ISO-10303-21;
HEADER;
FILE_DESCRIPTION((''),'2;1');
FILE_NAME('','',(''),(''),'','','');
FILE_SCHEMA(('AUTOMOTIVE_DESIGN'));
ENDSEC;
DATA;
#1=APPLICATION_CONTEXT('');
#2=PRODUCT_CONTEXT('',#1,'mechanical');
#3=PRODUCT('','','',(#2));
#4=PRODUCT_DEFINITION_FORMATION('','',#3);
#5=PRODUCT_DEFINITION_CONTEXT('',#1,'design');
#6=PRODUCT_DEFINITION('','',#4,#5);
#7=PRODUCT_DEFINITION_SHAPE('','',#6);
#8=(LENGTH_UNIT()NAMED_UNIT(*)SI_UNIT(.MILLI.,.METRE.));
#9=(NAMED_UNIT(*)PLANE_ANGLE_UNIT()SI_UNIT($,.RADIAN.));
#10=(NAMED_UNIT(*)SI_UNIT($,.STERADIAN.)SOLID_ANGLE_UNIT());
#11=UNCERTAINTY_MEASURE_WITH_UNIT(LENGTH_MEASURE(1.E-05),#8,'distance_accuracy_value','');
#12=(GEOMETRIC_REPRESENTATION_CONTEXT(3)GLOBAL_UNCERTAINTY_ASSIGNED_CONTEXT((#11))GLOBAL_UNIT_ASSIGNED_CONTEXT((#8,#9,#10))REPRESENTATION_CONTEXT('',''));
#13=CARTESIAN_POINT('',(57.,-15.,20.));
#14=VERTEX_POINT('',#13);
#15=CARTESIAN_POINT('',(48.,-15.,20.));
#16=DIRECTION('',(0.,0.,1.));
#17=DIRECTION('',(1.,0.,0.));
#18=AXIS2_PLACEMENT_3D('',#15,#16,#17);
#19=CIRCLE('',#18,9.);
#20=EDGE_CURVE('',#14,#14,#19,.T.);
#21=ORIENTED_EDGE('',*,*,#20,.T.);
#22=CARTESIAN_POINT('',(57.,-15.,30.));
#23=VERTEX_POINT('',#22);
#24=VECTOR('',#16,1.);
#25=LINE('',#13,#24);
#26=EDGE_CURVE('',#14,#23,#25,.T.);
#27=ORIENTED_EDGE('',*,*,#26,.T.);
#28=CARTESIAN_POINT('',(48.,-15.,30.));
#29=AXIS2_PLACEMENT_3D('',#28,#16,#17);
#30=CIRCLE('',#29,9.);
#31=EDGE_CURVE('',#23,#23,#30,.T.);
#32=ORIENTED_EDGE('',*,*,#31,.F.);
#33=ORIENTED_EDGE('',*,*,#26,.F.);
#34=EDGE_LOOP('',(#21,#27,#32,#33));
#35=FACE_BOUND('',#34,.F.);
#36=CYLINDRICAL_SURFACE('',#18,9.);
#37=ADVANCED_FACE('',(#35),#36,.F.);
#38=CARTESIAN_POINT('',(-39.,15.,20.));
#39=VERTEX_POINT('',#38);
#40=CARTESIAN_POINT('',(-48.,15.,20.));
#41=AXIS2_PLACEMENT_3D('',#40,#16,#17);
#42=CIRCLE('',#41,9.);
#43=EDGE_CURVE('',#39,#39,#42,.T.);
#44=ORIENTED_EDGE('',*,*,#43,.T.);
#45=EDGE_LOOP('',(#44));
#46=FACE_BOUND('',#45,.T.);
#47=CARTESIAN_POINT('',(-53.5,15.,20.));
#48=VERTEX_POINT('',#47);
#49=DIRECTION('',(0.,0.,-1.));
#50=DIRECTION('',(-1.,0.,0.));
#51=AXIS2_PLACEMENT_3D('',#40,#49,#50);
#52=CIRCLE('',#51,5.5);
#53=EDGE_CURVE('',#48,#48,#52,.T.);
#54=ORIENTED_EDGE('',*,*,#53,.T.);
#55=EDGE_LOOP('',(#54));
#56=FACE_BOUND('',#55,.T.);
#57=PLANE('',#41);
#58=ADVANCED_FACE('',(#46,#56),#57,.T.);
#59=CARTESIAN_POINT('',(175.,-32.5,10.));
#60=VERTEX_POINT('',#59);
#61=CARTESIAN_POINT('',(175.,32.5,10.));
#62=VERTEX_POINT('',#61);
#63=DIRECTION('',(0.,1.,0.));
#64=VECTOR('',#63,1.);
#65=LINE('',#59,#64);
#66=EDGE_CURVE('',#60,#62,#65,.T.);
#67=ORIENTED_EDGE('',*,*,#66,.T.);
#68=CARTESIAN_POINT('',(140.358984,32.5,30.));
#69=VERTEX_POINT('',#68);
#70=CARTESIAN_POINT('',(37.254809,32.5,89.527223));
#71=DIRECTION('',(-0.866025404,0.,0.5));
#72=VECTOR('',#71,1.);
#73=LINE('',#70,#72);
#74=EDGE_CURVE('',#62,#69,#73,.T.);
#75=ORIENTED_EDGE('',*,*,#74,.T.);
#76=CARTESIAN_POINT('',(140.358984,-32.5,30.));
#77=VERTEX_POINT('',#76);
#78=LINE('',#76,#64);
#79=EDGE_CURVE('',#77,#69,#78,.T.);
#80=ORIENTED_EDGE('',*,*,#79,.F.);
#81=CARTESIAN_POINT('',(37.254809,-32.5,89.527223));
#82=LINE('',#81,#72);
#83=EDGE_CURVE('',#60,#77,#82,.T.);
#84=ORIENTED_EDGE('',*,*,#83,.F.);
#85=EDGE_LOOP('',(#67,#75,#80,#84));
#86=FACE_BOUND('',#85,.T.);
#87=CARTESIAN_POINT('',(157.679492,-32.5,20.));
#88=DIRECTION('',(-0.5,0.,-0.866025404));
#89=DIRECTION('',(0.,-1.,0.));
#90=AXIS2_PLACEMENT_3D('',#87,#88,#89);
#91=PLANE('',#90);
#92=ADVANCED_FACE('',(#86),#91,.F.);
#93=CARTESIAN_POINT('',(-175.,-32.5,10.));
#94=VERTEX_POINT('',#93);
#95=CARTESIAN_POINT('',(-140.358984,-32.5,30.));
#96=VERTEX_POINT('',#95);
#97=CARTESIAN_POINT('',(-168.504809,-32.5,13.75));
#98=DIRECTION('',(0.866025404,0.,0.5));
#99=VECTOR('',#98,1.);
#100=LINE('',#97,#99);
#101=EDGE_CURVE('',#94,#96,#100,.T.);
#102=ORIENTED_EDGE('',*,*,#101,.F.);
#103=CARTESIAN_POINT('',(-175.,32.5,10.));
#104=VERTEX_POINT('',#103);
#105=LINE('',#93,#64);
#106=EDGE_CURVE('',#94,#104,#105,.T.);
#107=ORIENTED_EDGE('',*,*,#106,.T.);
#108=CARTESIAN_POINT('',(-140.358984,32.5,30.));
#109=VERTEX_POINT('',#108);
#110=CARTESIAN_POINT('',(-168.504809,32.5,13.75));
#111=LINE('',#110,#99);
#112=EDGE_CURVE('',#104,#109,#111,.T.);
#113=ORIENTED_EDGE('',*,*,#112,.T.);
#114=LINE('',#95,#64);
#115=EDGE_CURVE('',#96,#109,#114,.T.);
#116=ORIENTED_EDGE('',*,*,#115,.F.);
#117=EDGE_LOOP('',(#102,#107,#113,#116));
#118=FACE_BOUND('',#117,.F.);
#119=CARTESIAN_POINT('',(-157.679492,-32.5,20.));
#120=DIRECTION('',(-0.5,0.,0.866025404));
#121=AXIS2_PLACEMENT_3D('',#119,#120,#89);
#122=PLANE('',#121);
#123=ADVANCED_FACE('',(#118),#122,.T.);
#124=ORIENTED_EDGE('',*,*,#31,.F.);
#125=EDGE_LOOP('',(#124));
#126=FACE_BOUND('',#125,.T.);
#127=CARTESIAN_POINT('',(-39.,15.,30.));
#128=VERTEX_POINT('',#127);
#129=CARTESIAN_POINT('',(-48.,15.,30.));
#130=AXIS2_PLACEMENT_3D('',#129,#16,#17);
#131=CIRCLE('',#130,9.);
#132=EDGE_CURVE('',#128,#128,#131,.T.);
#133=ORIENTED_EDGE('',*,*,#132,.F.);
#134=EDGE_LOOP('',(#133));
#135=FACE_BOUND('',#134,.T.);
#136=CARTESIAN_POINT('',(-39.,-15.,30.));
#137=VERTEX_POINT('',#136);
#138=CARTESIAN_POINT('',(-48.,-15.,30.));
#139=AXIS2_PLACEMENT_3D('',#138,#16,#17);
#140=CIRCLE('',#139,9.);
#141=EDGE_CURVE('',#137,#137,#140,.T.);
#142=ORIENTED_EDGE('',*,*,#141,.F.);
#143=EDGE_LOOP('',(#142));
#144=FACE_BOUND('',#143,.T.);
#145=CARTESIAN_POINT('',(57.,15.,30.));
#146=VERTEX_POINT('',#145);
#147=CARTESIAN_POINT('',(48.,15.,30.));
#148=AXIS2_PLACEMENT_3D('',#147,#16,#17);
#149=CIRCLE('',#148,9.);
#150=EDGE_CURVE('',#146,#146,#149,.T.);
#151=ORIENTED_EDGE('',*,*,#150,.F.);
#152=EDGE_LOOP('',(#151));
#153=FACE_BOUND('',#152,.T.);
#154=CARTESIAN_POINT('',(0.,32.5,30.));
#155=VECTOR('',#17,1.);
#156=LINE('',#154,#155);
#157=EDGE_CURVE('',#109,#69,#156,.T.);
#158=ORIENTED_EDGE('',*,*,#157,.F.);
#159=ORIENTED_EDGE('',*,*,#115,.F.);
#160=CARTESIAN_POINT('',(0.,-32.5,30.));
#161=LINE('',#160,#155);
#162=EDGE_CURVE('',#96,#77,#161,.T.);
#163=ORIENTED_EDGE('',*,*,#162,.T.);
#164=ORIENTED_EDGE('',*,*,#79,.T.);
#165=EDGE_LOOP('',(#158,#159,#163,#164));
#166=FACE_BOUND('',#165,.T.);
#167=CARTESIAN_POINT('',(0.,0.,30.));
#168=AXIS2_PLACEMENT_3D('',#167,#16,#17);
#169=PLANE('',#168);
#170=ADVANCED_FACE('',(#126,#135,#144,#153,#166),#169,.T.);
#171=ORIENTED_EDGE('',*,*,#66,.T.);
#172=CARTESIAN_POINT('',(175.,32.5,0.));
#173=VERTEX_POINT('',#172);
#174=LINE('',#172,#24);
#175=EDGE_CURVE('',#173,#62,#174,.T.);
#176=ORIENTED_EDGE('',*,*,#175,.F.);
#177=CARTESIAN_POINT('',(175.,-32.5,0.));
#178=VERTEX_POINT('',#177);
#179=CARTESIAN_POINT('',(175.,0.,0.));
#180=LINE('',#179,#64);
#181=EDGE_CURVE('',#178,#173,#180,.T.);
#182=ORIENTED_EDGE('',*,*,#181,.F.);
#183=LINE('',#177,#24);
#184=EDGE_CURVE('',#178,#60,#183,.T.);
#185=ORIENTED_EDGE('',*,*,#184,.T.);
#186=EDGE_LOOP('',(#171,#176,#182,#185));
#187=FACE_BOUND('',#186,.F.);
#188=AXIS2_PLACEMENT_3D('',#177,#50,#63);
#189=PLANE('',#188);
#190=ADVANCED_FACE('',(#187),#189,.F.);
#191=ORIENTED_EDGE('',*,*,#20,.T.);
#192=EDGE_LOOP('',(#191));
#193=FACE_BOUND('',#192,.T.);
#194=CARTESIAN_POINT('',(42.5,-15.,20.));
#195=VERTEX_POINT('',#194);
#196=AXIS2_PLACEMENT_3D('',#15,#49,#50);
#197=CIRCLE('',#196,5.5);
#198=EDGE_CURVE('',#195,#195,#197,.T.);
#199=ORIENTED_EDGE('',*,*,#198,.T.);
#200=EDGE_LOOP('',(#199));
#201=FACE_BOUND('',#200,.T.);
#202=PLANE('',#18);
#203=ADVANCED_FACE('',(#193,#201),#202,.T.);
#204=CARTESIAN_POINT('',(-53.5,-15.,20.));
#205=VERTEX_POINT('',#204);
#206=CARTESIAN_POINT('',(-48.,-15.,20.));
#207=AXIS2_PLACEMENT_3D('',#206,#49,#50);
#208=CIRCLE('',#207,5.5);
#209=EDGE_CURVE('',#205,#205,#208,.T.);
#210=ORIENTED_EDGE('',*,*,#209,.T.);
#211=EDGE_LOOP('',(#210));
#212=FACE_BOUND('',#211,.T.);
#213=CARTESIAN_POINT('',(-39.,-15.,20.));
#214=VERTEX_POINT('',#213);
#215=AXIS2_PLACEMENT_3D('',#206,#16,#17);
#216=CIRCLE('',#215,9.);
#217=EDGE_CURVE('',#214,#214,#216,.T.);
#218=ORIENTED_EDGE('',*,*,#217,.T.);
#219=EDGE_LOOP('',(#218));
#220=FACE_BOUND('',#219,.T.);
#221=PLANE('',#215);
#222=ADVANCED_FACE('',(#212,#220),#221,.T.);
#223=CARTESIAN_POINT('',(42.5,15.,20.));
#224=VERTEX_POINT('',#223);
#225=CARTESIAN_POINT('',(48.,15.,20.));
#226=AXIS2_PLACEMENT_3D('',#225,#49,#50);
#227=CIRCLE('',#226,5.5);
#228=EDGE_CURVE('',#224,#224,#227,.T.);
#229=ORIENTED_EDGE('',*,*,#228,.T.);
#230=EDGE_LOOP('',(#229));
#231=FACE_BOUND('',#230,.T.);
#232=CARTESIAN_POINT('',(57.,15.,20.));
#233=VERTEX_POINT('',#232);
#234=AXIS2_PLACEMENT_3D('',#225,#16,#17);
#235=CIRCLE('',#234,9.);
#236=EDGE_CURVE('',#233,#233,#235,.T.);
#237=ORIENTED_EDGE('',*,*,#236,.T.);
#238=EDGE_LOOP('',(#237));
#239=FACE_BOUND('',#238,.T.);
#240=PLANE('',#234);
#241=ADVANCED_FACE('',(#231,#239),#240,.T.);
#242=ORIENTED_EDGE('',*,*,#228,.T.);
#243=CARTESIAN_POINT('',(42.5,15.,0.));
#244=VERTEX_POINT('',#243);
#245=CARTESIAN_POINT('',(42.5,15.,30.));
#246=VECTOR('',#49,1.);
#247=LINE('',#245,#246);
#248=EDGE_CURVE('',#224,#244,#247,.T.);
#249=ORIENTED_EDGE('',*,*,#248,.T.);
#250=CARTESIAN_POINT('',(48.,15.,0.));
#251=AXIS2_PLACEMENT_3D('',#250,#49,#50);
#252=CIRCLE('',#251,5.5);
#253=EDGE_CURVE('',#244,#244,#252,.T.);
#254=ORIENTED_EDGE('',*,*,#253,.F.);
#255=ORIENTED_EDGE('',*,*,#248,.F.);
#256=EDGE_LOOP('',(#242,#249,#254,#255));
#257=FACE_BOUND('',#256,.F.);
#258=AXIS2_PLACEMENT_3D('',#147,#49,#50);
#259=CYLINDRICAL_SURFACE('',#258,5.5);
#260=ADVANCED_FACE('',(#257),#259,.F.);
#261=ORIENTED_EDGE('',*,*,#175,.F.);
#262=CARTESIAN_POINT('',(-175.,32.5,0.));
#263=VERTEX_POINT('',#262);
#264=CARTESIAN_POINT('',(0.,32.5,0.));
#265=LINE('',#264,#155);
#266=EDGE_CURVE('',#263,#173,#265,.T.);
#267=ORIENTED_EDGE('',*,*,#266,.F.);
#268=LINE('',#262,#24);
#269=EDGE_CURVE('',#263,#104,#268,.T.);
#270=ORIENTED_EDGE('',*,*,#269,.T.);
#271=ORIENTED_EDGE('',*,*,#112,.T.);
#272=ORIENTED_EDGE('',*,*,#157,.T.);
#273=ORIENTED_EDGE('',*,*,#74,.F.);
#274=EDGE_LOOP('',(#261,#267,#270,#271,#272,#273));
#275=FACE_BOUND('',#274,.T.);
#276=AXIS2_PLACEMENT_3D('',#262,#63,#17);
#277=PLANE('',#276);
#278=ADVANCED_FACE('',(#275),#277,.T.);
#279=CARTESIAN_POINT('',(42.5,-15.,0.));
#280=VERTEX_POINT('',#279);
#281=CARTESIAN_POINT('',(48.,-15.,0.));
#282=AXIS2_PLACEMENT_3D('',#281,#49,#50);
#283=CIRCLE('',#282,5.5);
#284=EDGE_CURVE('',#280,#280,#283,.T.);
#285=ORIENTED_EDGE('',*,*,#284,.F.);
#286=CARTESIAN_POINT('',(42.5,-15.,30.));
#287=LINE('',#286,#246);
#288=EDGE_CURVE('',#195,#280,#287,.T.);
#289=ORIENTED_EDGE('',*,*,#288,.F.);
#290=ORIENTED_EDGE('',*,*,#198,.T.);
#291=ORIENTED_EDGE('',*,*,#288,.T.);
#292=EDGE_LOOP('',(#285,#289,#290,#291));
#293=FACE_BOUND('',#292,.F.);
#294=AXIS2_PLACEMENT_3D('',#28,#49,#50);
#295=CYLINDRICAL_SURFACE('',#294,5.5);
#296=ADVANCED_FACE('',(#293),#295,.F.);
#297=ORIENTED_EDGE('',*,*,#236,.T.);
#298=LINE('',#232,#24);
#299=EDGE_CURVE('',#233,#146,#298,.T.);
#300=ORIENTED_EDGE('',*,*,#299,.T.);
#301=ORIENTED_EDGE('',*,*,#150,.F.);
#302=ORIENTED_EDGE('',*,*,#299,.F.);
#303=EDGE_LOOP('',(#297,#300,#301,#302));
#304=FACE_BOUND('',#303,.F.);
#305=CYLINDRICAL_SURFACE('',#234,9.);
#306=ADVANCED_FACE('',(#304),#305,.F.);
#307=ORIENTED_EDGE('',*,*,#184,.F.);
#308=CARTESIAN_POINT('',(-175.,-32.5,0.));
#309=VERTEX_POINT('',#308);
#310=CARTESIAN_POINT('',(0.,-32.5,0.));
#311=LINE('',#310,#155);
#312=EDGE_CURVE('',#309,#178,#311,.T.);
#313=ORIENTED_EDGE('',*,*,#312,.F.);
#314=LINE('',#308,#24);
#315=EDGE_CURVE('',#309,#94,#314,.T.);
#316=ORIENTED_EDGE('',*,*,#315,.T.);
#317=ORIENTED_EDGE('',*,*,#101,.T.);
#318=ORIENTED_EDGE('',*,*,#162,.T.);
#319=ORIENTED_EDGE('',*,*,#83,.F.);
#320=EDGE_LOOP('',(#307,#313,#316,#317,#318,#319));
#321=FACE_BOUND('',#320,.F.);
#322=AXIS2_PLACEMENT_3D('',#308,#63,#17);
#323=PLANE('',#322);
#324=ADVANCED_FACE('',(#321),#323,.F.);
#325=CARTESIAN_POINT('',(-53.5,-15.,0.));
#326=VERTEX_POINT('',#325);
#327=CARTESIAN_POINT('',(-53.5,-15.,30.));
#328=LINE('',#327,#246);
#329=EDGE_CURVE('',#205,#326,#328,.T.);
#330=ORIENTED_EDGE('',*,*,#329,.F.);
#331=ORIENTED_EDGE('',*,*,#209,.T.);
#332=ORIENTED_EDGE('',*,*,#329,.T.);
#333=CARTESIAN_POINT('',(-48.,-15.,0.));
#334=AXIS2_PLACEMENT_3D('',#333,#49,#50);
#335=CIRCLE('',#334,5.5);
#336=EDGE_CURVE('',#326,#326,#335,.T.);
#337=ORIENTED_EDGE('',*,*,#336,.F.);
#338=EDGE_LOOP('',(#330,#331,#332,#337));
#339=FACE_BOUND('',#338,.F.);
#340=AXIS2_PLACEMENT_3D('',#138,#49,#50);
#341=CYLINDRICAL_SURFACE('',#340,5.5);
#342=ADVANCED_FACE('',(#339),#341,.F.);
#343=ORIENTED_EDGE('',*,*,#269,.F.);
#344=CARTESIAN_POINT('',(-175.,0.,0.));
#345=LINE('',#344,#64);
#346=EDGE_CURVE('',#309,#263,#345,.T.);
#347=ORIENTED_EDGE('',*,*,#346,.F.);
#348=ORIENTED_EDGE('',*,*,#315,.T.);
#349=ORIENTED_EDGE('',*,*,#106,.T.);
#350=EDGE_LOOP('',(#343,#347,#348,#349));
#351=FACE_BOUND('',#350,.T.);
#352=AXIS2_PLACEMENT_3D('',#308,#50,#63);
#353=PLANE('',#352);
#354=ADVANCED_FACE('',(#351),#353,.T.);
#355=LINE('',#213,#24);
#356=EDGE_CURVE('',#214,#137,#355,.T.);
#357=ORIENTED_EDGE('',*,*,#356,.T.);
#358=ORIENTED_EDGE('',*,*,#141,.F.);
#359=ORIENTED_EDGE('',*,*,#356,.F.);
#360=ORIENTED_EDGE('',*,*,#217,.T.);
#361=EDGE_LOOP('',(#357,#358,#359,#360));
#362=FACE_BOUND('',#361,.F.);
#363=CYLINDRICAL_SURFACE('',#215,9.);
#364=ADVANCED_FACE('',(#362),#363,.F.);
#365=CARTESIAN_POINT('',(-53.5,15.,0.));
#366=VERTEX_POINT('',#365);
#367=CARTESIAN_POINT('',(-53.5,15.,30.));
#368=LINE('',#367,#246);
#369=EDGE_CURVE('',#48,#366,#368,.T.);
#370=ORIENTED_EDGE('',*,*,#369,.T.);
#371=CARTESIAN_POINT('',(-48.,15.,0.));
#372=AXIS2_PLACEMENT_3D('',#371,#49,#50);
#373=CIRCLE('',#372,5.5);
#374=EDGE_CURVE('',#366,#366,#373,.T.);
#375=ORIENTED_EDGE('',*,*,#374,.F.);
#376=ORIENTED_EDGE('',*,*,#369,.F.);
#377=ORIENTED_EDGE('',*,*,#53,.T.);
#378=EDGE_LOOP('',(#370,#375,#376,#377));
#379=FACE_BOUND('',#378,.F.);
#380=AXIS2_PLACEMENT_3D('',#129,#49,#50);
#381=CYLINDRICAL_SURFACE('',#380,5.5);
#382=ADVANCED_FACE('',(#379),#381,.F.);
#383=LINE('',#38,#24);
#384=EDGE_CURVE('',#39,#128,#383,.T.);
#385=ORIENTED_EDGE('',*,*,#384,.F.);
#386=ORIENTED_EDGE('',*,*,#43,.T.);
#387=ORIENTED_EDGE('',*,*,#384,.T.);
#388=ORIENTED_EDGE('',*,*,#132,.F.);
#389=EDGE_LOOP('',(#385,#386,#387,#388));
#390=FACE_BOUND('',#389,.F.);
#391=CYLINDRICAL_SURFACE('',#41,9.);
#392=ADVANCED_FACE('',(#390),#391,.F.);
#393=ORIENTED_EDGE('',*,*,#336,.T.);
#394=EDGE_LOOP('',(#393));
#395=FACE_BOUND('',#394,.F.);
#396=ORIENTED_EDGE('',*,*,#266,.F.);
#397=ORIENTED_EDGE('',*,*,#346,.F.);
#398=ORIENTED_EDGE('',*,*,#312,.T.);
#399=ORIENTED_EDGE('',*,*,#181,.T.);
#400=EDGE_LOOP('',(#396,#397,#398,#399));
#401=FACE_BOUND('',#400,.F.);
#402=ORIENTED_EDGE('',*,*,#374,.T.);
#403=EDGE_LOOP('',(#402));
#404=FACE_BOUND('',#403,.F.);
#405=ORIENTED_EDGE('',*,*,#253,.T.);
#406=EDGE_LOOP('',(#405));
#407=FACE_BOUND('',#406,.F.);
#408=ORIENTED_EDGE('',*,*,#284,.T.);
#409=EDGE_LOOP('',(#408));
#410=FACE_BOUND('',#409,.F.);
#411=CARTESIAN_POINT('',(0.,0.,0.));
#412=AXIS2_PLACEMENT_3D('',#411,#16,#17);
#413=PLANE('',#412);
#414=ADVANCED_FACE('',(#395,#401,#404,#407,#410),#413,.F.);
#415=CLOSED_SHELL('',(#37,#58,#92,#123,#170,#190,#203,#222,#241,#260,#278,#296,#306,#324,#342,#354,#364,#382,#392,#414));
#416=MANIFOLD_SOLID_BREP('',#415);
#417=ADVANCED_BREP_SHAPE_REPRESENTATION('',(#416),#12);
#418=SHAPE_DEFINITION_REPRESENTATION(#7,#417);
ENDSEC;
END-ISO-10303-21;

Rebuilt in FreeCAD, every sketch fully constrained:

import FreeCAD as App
import Part
import Sketcher


def edges_at(feature, points):
    """Names of the edges that pass closest to the given points."""
    edges = feature.Shape.Edges
    near = lambda p: min(range(len(edges)), key=lambda i: edges[i].distToShape(Part.Vertex(*p))[0])
    return sorted({f"Edge{near(p) + 1}" for p in points})

doc = App.newDocument("Part")
body = doc.addObject("PartDesign::Body", "Body")

# Sketch on XY plane
sketch1 = doc.addObject("Sketcher::SketchObject", "Sketch")
body.addObject(sketch1)
sketch1.AttachmentSupport = (doc.XY_Plane, [""])
sketch1.MapMode = "FlatFace"
sketch1.addGeometry(Part.LineSegment(App.Vector(-175, 32.5, 0), App.Vector(-175, -32.5, 0)), False)
sketch1.addGeometry(Part.LineSegment(App.Vector(-175, -32.5, 0), App.Vector(175, -32.5, 0)), False)
sketch1.addGeometry(Part.LineSegment(App.Vector(175, -32.5, 0), App.Vector(175, 32.5, 0)), False)
sketch1.addGeometry(Part.LineSegment(App.Vector(175, 32.5, 0), App.Vector(-175, 32.5, 0)), False)
sketch1.addConstraint(Sketcher.Constraint("Coincident", 0, 2, 1, 1))
sketch1.addConstraint(Sketcher.Constraint("Coincident", 1, 2, 2, 1))
sketch1.addConstraint(Sketcher.Constraint("Coincident", 2, 2, 3, 1))
sketch1.addConstraint(Sketcher.Constraint("Coincident", 3, 2, 0, 1))
sketch1.addConstraint(Sketcher.Constraint("Vertical", 0))
sketch1.addConstraint(Sketcher.Constraint("Horizontal", 1))
sketch1.addConstraint(Sketcher.Constraint("Vertical", 2))
sketch1.addConstraint(Sketcher.Constraint("Horizontal", 3))
sketch1.addConstraint(Sketcher.Constraint("Symmetric", 0, 2, 2, 2, -1, 1))
sketch1.addConstraint(Sketcher.Constraint("DistanceX", 1, 1, 1, 2, 350.0))
sketch1.addConstraint(Sketcher.Constraint("DistanceY", 0, 2, 0, 1, 65.0))
pad1 = doc.addObject("PartDesign::Pad", "Pad")
body.addObject(pad1)
pad1.Profile = sketch1
pad1.Length = 30

# Sketch on XY plane
sketch2 = doc.addObject("Sketcher::SketchObject", "Sketch001")
body.addObject(sketch2)
sketch2.AttachmentSupport = (doc.XY_Plane, [""])
sketch2.MapMode = "FlatFace"
sketch2.AttachmentOffset = App.Placement(App.Vector(0, 0, 30), App.Rotation())
sketch2.addGeometry(Part.Circle(App.Vector(-48, 15, 0), App.Vector(0, 0, 1), 5.5), False)
sketch2.addGeometry(Part.Circle(App.Vector(48, 15, 0), App.Vector(0, 0, 1), 5.5), False)
sketch2.addGeometry(Part.Circle(App.Vector(48, -15, 0), App.Vector(0, 0, 1), 5.5), False)
sketch2.addGeometry(Part.Circle(App.Vector(-48, -15, 0), App.Vector(0, 0, 1), 5.5), False)
sketch2.addConstraint(Sketcher.Constraint("Equal", 0, 1))
sketch2.addConstraint(Sketcher.Constraint("Equal", 1, 2))
sketch2.addConstraint(Sketcher.Constraint("Equal", 2, 3))
sketch2.addConstraint(Sketcher.Constraint("Symmetric", 0, 3, 2, 3, -1, 1))
sketch2.addConstraint(Sketcher.Constraint("Symmetric", 1, 3, 3, 3, -1, 1))
sketch2.addConstraint(Sketcher.Constraint("Symmetric", 0, 3, 1, 3, -2))
sketch2.addConstraint(Sketcher.Constraint("Diameter", 0, 11.0))
sketch2.addConstraint(Sketcher.Constraint("DistanceX", 0, 3, -1, 1, 48.0))
sketch2.addConstraint(Sketcher.Constraint("DistanceY", -1, 1, 0, 3, 15.0))
doc.recompute()
hole = doc.addObject("PartDesign::Hole", "Hole")
body.addObject(hole)
hole.Profile = sketch2
hole.ThreadType = "None"
hole.Diameter = 11
hole.DepthType = "ThroughAll"
hole.HoleCutType = "Counterbore"
hole.HoleCutDiameter = 18
hole.HoleCutDepth = 10
doc.recompute()

chamfer = doc.addObject("PartDesign::Chamfer", "Chamfer")
body.addObject(chamfer)
chamfer.Base = (hole, edges_at(hole, [(-175, 0, 30)]))
chamfer.ChamferType = "Two distances"
chamfer.Size = 20
chamfer.Size2 = 34.641016
doc.recompute()

chamfer2 = doc.addObject("PartDesign::Chamfer", "Chamfer001")
body.addObject(chamfer2)
chamfer2.Base = (chamfer, edges_at(chamfer, [(175, 0, 30)]))
chamfer2.ChamferType = "Two distances"
chamfer2.Size = 20
chamfer2.Size2 = 34.641016
chamfer2.FlipDirection = True

doc.recompute()
